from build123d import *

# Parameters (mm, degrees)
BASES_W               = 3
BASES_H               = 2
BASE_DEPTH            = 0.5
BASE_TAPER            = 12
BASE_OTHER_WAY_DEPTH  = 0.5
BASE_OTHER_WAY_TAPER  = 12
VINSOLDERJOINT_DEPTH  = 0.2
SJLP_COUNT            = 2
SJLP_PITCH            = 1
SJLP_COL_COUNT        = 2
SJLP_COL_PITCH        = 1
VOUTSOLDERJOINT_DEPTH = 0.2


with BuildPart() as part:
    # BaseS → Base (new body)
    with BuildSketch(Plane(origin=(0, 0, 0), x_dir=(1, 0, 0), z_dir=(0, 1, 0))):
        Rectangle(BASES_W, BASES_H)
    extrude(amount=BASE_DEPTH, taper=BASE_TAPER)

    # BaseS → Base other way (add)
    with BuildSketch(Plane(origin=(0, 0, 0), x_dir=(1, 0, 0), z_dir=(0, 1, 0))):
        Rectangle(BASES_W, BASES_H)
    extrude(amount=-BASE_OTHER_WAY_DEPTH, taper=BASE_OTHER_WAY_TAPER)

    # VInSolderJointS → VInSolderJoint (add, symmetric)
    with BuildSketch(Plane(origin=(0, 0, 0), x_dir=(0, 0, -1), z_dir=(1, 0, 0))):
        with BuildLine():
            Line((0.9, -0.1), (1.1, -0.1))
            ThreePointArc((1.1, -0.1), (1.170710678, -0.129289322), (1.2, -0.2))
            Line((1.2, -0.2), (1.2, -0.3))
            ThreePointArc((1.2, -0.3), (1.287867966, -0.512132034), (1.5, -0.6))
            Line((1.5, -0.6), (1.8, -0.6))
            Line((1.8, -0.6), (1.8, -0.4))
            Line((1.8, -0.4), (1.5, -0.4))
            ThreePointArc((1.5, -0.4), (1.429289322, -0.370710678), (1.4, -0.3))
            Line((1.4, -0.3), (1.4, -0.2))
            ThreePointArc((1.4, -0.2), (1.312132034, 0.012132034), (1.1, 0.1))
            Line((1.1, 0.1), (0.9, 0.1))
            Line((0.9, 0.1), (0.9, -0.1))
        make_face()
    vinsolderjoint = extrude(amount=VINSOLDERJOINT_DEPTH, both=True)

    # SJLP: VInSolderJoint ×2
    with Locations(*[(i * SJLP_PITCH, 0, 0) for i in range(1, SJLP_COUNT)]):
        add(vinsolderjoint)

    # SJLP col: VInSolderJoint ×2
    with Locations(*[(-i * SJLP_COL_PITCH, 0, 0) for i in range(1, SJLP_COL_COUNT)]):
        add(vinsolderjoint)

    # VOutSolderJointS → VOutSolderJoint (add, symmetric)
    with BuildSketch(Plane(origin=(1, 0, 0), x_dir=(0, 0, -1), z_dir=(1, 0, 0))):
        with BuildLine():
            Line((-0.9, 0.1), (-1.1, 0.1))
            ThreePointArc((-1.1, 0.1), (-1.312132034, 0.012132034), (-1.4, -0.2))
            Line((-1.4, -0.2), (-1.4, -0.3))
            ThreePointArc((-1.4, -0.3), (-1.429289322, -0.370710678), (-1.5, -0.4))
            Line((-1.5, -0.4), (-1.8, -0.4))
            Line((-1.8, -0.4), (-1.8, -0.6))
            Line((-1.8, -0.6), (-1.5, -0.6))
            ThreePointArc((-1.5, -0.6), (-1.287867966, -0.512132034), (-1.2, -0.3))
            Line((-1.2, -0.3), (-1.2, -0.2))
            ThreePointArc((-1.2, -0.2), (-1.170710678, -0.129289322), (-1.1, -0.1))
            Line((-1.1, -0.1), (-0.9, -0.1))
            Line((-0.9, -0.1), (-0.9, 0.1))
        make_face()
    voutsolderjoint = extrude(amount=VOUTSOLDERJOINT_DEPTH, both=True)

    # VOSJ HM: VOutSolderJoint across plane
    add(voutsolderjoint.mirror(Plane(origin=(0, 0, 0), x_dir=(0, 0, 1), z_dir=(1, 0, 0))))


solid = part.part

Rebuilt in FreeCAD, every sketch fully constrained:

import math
import FreeCAD as App
import Part
import Sketcher
Q = App.Units.Quantity


def add_polygon(sketch, points):
    """Adds a closed chain of lines whose ends are joined by coincident constraints."""
    first, n = sketch.GeometryCount, len(points)
    for a, b in zip(points, points[1:] + points[:1]):
        sketch.addGeometry(Part.LineSegment(App.Vector(*a, 0), App.Vector(*b, 0)), False)
    for i in range(n):
        sketch.addConstraint(Sketcher.Constraint("Coincident", first + i, 2, first + (i + 1) % n, 1))

doc = App.newDocument("Part")
body = doc.addObject("PartDesign::Body", "Body")

# Sketch on XZ plane
sketch1 = doc.addObject("Sketcher::SketchObject", "Sketch")
body.addObject(sketch1)
sketch1.AttachmentSupport = (doc.XZ_Plane, [""])
sketch1.MapMode = "FlatFace"
add_polygon(sketch1, [(-1.5, -1), (-1.5, 1), (1.5, 1), (1.5, -1)])  # lines 0-3
sketch1.addConstraint([
    Sketcher.Constraint("Vertical", 0),
    Sketcher.Constraint("Horizontal", 1),
    Sketcher.Constraint("Vertical", 2),
    Sketcher.Constraint("Horizontal", 3),
    Sketcher.Constraint("Symmetric", 0, 2, 2, 2, -1, 1),
    Sketcher.Constraint("DistanceX", 1, 1, 1, 2, Q("3 mm")),
    Sketcher.Constraint("DistanceY", 0, 1, 0, 2, Q("2 mm")),
])
pad1 = doc.addObject("PartDesign::Pad", "Pad")
body.addObject(pad1)
pad1.Profile = sketch1
pad1.Length = 0.5
pad1.Reversed = True
pad1.TaperAngle = -12

# Sketch on XZ plane
sketch2 = doc.addObject("Sketcher::SketchObject", "Sketch001")
body.addObject(sketch2)
sketch2.AttachmentSupport = (doc.XZ_Plane, [""])
sketch2.MapMode = "FlatFace"
add_polygon(sketch2, [(-1.5, -1), (-1.5, 1), (1.5, 1), (1.5, -1)])  # lines 0-3
sketch2.addConstraint([
    Sketcher.Constraint("Vertical", 0),
    Sketcher.Constraint("Horizontal", 1),
    Sketcher.Constraint("Vertical", 2),
    Sketcher.Constraint("Horizontal", 3),
    Sketcher.Constraint("Symmetric", 0, 2, 2, 2, -1, 1),
    Sketcher.Constraint("DistanceX", 1, 1, 1, 2, Q("3 mm")),
    Sketcher.Constraint("DistanceY", 0, 1, 0, 2, Q("2 mm")),
])
pad2 = doc.addObject("PartDesign::Pad", "Pad001")
body.addObject(pad2)
pad2.Profile = sketch2
pad2.Length = 0.5
pad2.TaperAngle = -12

# Sketch on YZ plane
sketch3 = doc.addObject("Sketcher::SketchObject", "Sketch002")
body.addObject(sketch3)
sketch3.AttachmentSupport = (doc.YZ_Plane, [""])
sketch3.MapMode = "FlatFace"
sketch3.addGeometry([
    Part.LineSegment(App.Vector(-0.1, -0.9, 0), App.Vector(-0.1, -1.1, 0)),  # 0
    Part.ArcOfCircle(Part.Circle(App.Vector(-0.2, -1.1, 0), App.Vector(0, 0, 1), 0.1), math.radians(-90), math.radians(0)),  # 1
    Part.LineSegment(App.Vector(-0.2, -1.2, 0), App.Vector(-0.3, -1.2, 0)),  # 2
    Part.ArcOfCircle(Part.Circle(App.Vector(-0.3, -1.5, 0), App.Vector(0, 0, 1), 0.3), math.radians(90), math.radians(180)),  # 3
    Part.LineSegment(App.Vector(-0.6, -1.5, 0), App.Vector(-0.6, -1.8, 0)),  # 4
    Part.LineSegment(App.Vector(-0.6, -1.8, 0), App.Vector(-0.4, -1.8, 0)),  # 5
    Part.LineSegment(App.Vector(-0.4, -1.8, 0), App.Vector(-0.4, -1.5, 0)),  # 6
    Part.ArcOfCircle(Part.Circle(App.Vector(-0.3, -1.5, 0), App.Vector(0, 0, 1), 0.1), math.radians(90), math.radians(180)),  # 7
    Part.LineSegment(App.Vector(-0.3, -1.4, 0), App.Vector(-0.2, -1.4, 0)),  # 8
    Part.ArcOfCircle(Part.Circle(App.Vector(-0.2, -1.1, 0), App.Vector(0, 0, 1), 0.3), math.radians(-90), math.radians(0)),  # 9
    Part.LineSegment(App.Vector(0.1, -1.1, 0), App.Vector(0.1, -0.9, 0)),  # 10
    Part.LineSegment(App.Vector(0.1, -0.9, 0), App.Vector(-0.1, -0.9, 0)),  # 11
], False)
sketch3.addConstraint([
    Sketcher.Constraint("Tangent", 0, 2, 1, 2),
    Sketcher.Constraint("Tangent", 1, 1, 2, 1),
    Sketcher.Constraint("Tangent", 2, 2, 3, 1),
    Sketcher.Constraint("Tangent", 3, 2, 4, 1),
    Sketcher.Constraint("Coincident", 4, 2, 5, 1),
    Sketcher.Constraint("Coincident", 5, 2, 6, 1),
    Sketcher.Constraint("Tangent", 6, 2, 7, 2),
    Sketcher.Constraint("Tangent", 7, 1, 8, 1),
    Sketcher.Constraint("Tangent", 8, 2, 9, 1),
    Sketcher.Constraint("Tangent", 9, 2, 10, 1),
    Sketcher.Constraint("Coincident", 10, 2, 11, 1),
    Sketcher.Constraint("Coincident", 11, 2, 0, 1),
    Sketcher.Constraint("Vertical", 0),
    Sketcher.Constraint("Horizontal", 2),
    Sketcher.Constraint("Vertical", 4),
    Sketcher.Constraint("Horizontal", 5),
    Sketcher.Constraint("Vertical", 6),
    Sketcher.Constraint("Horizontal", 8),
    Sketcher.Constraint("Vertical", 10),
    Sketcher.Constraint("Horizontal", 11),
    Sketcher.Constraint("Coincident", 7, 3, 3, 3),
    Sketcher.Constraint("Coincident", 9, 3, 1, 3),
    Sketcher.Constraint("Equal", 1, 7),
    Sketcher.Constraint("Equal", 11, 0),
    Sketcher.Constraint("Radius", 1, Q("0.1 mm")),
    Sketcher.Constraint("Radius", 3, Q("0.3 mm")),
    Sketcher.Constraint("DistanceX", 2, 2, 2, 1, Q("0.1 mm")),
    Sketcher.Constraint("DistanceY", 4, 2, 4, 1, Q("0.3 mm")),
    Sketcher.Constraint("DistanceX", 1, 3, -1, 1, Q("0.2 mm")),
    Sketcher.Constraint("DistanceY", 1, 3, -1, 1, Q("1.1 mm")),
])
pad3 = doc.addObject("PartDesign::Pad", "Pad002")
body.addObject(pad3)
pad3.Profile = sketch3
pad3.Length = 0.4
pad3.Midplane = True
doc.recompute()

linearpattern = doc.addObject("PartDesign::LinearPattern", "LinearPattern")
body.addObject(linearpattern)
linearpattern.Originals = [pad3]
linearpattern.Direction = (doc.X_Axis, [""])
linearpattern.Mode = "offset"
linearpattern.Offset = 1
linearpattern.Occurrences = 2
body.Tip = linearpattern
doc.recompute()

linearpattern2 = doc.addObject("PartDesign::LinearPattern", "LinearPattern001")
body.addObject(linearpattern2)
linearpattern2.Originals = [pad3]
linearpattern2.Direction = (doc.X_Axis, [""])
linearpattern2.Mode = "offset"
linearpattern2.Offset = 1
linearpattern2.Occurrences = 2
linearpattern2.Reversed = True
body.Tip = linearpattern2

# Sketch on YZ plane
sketch4 = doc.addObject("Sketcher::SketchObject", "Sketch003")
body.addObject(sketch4)
sketch4.AttachmentSupport = (doc.YZ_Plane, [""])
sketch4.MapMode = "FlatFace"
sketch4.AttachmentOffset = App.Placement(App.Vector(0, 0, 1), App.Rotation())
sketch4.addGeometry([
    Part.LineSegment(App.Vector(0.1, 0.9, 0), App.Vector(0.1, 1.1, 0)),  # 0
    Part.ArcOfCircle(Part.Circle(App.Vector(-0.2, 1.1, 0), App.Vector(0, 0, 1), 0.3), math.radians(0), math.radians(90)),  # 1
    Part.LineSegment(App.Vector(-0.2, 1.4, 0), App.Vector(-0.3, 1.4, 0)),  # 2
    Part.ArcOfCircle(Part.Circle(App.Vector(-0.3, 1.5, 0), App.Vector(0, 0, 1), 0.1), math.radians(180), math.radians(270)),  # 3
    Part.LineSegment(App.Vector(-0.4, 1.5, 0), App.Vector(-0.4, 1.8, 0)),  # 4
    Part.LineSegment(App.Vector(-0.4, 1.8, 0), App.Vector(-0.6, 1.8, 0)),  # 5
    Part.LineSegment(App.Vector(-0.6, 1.8, 0), App.Vector(-0.6, 1.5, 0)),  # 6
    Part.ArcOfCircle(Part.Circle(App.Vector(-0.3, 1.5, 0), App.Vector(0, 0, 1), 0.3), math.radians(-180), math.radians(-90)),  # 7
    Part.LineSegment(App.Vector(-0.3, 1.2, 0), App.Vector(-0.2, 1.2, 0)),  # 8
    Part.ArcOfCircle(Part.Circle(App.Vector(-0.2, 1.1, 0), App.Vector(0, 0, 1), 0.1), math.radians(0), math.radians(90)),  # 9
    Part.LineSegment(App.Vector(-0.1, 1.1, 0), App.Vector(-0.1, 0.9, 0)),  # 10
    Part.LineSegment(App.Vector(-0.1, 0.9, 0), App.Vector(0.1, 0.9, 0)),  # 11
], False)
sketch4.addConstraint([
    Sketcher.Constraint("Tangent", 0, 2, 1, 1),
    Sketcher.Constraint("Tangent", 1, 2, 2, 1),
    Sketcher.Constraint("Tangent", 2, 2, 3, 2),
    Sketcher.Constraint("Tangent", 3, 1, 4, 1),
    Sketcher.Constraint("Coincident", 4, 2, 5, 1),
    Sketcher.Constraint("Coincident", 5, 2, 6, 1),
    Sketcher.Constraint("Tangent", 6, 2, 7, 1),
    Sketcher.Constraint("Tangent", 7, 2, 8, 1),
    Sketcher.Constraint("Tangent", 8, 2, 9, 2),
    Sketcher.Constraint("Tangent", 9, 1, 10, 1),
    Sketcher.Constraint("Coincident", 10, 2, 11, 1),
    Sketcher.Constraint("Coincident", 11, 2, 0, 1),
    Sketcher.Constraint("Vertical", 0),
    Sketcher.Constraint("Horizontal", 2),
    Sketcher.Constraint("Vertical", 4),
    Sketcher.Constraint("Horizontal", 5),
    Sketcher.Constraint("Vertical", 6),
    Sketcher.Constraint("Horizontal", 8),
    Sketcher.Constraint("Vertical", 10),
    Sketcher.Constraint("Horizontal", 11),
    Sketcher.Constraint("Coincident", 7, 3, 3, 3),
    Sketcher.Constraint("Coincident", 9, 3, 1, 3),
    Sketcher.Constraint("Equal", 1, 7),
    Sketcher.Constraint("Equal", 11, 0),
    Sketcher.Constraint("Radius", 1, Q("0.3 mm")),
    Sketcher.Constraint("Radius", 3, Q("0.1 mm")),
    Sketcher.Constraint("DistanceX", 2, 2, 2, 1, Q("0.1 mm")),
    Sketcher.Constraint("DistanceY", 4, 1, 4, 2, Q("0.3 mm")),
    Sketcher.Constraint("DistanceX", 1, 3, -1, 1, Q("0.2 mm")),
    Sketcher.Constraint("DistanceY", -1, 1, 1, 3, Q("1.1 mm")),
])
pad4 = doc.addObject("PartDesign::Pad", "Pad003")
body.addObject(pad4)
pad4.Profile = sketch4
pad4.Length = 0.4
pad4.Midplane = True
doc.recompute()

mirrored = doc.addObject("PartDesign::Mirrored", "Mirrored")
body.addObject(mirrored)
mirrored.Originals = [pad4]
mirrored.MirrorPlane = (doc.YZ_Plane, [""])
body.Tip = mirrored

doc.recompute()
